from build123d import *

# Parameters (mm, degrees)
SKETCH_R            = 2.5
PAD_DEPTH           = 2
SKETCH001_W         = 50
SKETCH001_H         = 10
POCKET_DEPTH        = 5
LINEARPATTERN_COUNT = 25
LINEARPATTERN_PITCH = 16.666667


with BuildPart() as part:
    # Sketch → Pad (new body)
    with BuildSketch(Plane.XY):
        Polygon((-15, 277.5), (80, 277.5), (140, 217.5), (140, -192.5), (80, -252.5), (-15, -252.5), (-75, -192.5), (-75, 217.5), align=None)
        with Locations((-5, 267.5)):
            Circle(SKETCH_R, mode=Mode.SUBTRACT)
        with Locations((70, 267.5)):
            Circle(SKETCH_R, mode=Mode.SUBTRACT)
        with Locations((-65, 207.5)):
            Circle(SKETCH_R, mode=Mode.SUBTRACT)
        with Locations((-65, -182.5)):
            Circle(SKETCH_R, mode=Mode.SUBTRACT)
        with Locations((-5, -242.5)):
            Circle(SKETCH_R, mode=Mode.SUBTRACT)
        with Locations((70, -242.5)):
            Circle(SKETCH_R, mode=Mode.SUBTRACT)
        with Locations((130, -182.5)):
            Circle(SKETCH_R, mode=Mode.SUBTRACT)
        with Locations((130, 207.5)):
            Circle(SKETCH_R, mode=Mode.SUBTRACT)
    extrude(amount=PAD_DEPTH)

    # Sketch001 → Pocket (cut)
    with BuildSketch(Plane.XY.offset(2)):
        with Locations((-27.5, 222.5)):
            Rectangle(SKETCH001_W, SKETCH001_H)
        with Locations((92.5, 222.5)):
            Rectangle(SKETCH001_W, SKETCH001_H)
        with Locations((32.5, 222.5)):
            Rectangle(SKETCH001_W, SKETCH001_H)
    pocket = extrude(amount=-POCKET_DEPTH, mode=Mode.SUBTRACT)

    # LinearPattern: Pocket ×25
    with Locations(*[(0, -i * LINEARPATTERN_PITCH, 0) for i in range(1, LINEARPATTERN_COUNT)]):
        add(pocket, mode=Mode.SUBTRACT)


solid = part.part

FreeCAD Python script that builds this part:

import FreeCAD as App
import Part
import Sketcher
Q = App.Units.Quantity


def add_polygon(sketch, points):
    """Adds a closed chain of lines whose ends are joined by coincident constraints."""
    first, n = sketch.GeometryCount, len(points)
    for a, b in zip(points, points[1:] + points[:1]):
        sketch.addGeometry(Part.LineSegment(App.Vector(*a, 0), App.Vector(*b, 0)), False)
    for i in range(n):
        sketch.addConstraint(Sketcher.Constraint("Coincident", first + i, 2, first + (i + 1) % n, 1))

doc = App.newDocument("Part")
body = doc.addObject("PartDesign::Body", "Body")

# Sketch on XY plane
sketch1 = doc.addObject("Sketcher::SketchObject", "Sketch")
body.addObject(sketch1)
sketch1.AttachmentSupport = (doc.XY_Plane, [""])
sketch1.MapMode = "FlatFace"
add_polygon(sketch1, [(80, 277.5), (-15, 277.5), (-75, 217.5), (-75, -192.5), (-15, -252.5), (80, -252.5), (140, -192.5), (140, 217.5)])  # lines 0-7
sketch1.addGeometry(Part.Circle(App.Vector(130, -182.5, 0), App.Vector(0, 0, 1), 2.5), False)  # 8
sketch1.addGeometry(Part.Circle(App.Vector(70, -242.5, 0), App.Vector(0, 0, 1), 2.5), False)  # 9
sketch1.addGeometry(Part.Circle(App.Vector(-5, -242.5, 0), App.Vector(0, 0, 1), 2.5), False)  # 10
sketch1.addGeometry(Part.Circle(App.Vector(-65, -182.5, 0), App.Vector(0, 0, 1), 2.5), False)  # 11
sketch1.addGeometry(Part.Circle(App.Vector(130, 207.5, 0), App.Vector(0, 0, 1), 2.5), False)  # 12
sketch1.addGeometry(Part.Circle(App.Vector(70, 267.5, 0), App.Vector(0, 0, 1), 2.5), False)  # 13
sketch1.addGeometry(Part.Circle(App.Vector(-5, 267.5, 0), App.Vector(0, 0, 1), 2.5), False)  # 14
sketch1.addGeometry(Part.Circle(App.Vector(-65, 207.5, 0), App.Vector(0, 0, 1), 2.5), False)  # 15
sketch1.addConstraint([
    Sketcher.Constraint("Horizontal", 0),
    Sketcher.Constraint("Vertical", 2),
    Sketcher.Constraint("Horizontal", 4),
    Sketcher.Constraint("Vertical", 6),
    Sketcher.Constraint("Equal", 8, 9),
    Sketcher.Constraint("Equal", 9, 10),
    Sketcher.Constraint("Equal", 10, 11),
    Sketcher.Constraint("Equal", 11, 12),
    Sketcher.Constraint("Equal", 12, 13),
    Sketcher.Constraint("Equal", 13, 14),
    Sketcher.Constraint("Equal", 14, 15),
    Sketcher.Constraint("Perpendicular", 1, 3),
    Sketcher.Constraint("Perpendicular", 3, 5),
    Sketcher.Constraint("Perpendicular", 5, 7),
    Sketcher.Constraint("Horizontal", 9, 3, 10, 3),
    Sketcher.Constraint("Horizontal", 8, 3, 11, 3),
    Sketcher.Constraint("Horizontal", 13, 3, 14, 3),
    Sketcher.Constraint("Horizontal", 12, 3, 15, 3),
    Sketcher.Constraint("Horizontal", 2, 2, 5, 2),
    Sketcher.Constraint("Horizontal", 1, 2, 6, 2),
    Sketcher.Constraint("Vertical", 8, 3, 12, 3),
    Sketcher.Constraint("Vertical", 9, 3, 13, 3),
    Sketcher.Constraint("Vertical", 10, 3, 14, 3),
    Sketcher.Constraint("Vertical", 11, 3, 15, 3),
    Sketcher.Constraint("Vertical", 0, 2, 3, 2),
    Sketcher.Constraint("Vertical", 4, 2, 7, 2),
    Sketcher.Constraint("Diameter", 8, Q("5 mm")),
    Sketcher.Constraint("DistanceX", 0, 2, 0, 1, Q("95 mm")),
    Sketcher.Constraint("DistanceY", 2, 2, 2, 1, Q("410 mm")),
    Sketcher.Constraint("DistanceX", -1, 1, 8, 3, Q("130 mm")),
    Sketcher.Constraint("DistanceX", -1, 1, 9, 3, Q("70 mm")),
    Sketcher.Constraint("DistanceX", 10, 3, -1, 1, Q("5 mm")),
    Sketcher.Constraint("DistanceX", 11, 3, -1, 1, Q("65 mm")),
    Sketcher.Constraint("DistanceX", 0, 2, -1, 1, Q("15 mm")),
    Sketcher.Constraint("DistanceX", 1, 2, -1, 1, Q("75 mm")),
    Sketcher.Constraint("DistanceY", 9, 3, 8, 3, Q("60 mm")),
    Sketcher.Constraint("DistanceY", 8, 3, 12, 3, Q("390 mm")),
    Sketcher.Constraint("DistanceY", 12, 3, 13, 3, Q("60 mm")),
    Sketcher.Constraint("DistanceY", 14, 3, 0, 2, Q("10 mm")),
    Sketcher.Constraint("DistanceY", 8, 3, -1, 1, Q("182.5 mm")),
])
pad1 = doc.addObject("PartDesign::Pad", "Pad")
body.addObject(pad1)
pad1.Profile = sketch1
pad1.Length = 2

# Sketch on XY plane
sketch2 = doc.addObject("Sketcher::SketchObject", "Sketch001")
body.addObject(sketch2)
sketch2.AttachmentSupport = (doc.XY_Plane, [""])
sketch2.MapMode = "FlatFace"
sketch2.AttachmentOffset = App.Placement(App.Vector(0, 0, 2), App.Rotation())
add_polygon(sketch2, [(-52, 228), (-52, 218), (-2, 218), (-2, 228)])  # lines 0-3
add_polygon(sketch2, [(68, 228), (68, 218), (118, 218), (118, 228)])  # lines 4-7
add_polygon(sketch2, [(8, 228), (8, 218), (58, 218), (58, 228)])  # lines 8-11
sketch2.addConstraint([
    Sketcher.Constraint("Vertical", 0),
    Sketcher.Constraint("Horizontal", 1),
    Sketcher.Constraint("Vertical", 2),
    Sketcher.Constraint("Horizontal", 3),
    Sketcher.Constraint("Vertical", 4),
    Sketcher.Constraint("Horizontal", 5),
    Sketcher.Constraint("Vertical", 6),
    Sketcher.Constraint("Horizontal", 7),
    Sketcher.Constraint("Vertical", 8),
    Sketcher.Constraint("Horizontal", 9),
    Sketcher.Constraint("Vertical", 10),
    Sketcher.Constraint("Horizontal", 11),
    Sketcher.Constraint("Horizontal", 1, 2, 4, 2),
    Sketcher.Constraint("Horizontal", 3, 2, 6, 2),
    Sketcher.Constraint("Horizontal", 5, 2, 8, 2),
    Sketcher.Constraint("Horizontal", 7, 2, 10, 2),
    Sketcher.Constraint("Equal", 3, 5),
    Sketcher.Constraint("Equal", 7, 9),
    Sketcher.Constraint("DistanceX", 1, 1, 1, 2, Q("50 mm")),
    Sketcher.Constraint("DistanceY", 0, 2, 0, 1, Q("10 mm")),
    Sketcher.Constraint("DistanceX", 1, 2, 4, 2, Q("70 mm")),
    Sketcher.Constraint("DistanceX", 1, 2, 8, 2, Q("10 mm")),
    Sketcher.Constraint("DistanceX", 0, 2, -1, 1, Q("52.5 mm")),
    Sketcher.Constraint("DistanceY", -1, 1, 0, 2, Q("217.5 mm")),
])
pocket1 = doc.addObject("PartDesign::Pocket", "Pocket")
body.addObject(pocket1)
pocket1.Profile = sketch2
pocket1.Length = 5
doc.recompute()

linearpattern = doc.addObject("PartDesign::LinearPattern", "LinearPattern")
body.addObject(linearpattern)
linearpattern.Originals = [pocket1]
linearpattern.Direction = (doc.Y_Axis, [""])
linearpattern.Mode = "offset"
linearpattern.Offset = 16.666667
linearpattern.Occurrences = 25
linearpattern.Reversed = True
body.Tip = linearpattern

doc.recompute()
